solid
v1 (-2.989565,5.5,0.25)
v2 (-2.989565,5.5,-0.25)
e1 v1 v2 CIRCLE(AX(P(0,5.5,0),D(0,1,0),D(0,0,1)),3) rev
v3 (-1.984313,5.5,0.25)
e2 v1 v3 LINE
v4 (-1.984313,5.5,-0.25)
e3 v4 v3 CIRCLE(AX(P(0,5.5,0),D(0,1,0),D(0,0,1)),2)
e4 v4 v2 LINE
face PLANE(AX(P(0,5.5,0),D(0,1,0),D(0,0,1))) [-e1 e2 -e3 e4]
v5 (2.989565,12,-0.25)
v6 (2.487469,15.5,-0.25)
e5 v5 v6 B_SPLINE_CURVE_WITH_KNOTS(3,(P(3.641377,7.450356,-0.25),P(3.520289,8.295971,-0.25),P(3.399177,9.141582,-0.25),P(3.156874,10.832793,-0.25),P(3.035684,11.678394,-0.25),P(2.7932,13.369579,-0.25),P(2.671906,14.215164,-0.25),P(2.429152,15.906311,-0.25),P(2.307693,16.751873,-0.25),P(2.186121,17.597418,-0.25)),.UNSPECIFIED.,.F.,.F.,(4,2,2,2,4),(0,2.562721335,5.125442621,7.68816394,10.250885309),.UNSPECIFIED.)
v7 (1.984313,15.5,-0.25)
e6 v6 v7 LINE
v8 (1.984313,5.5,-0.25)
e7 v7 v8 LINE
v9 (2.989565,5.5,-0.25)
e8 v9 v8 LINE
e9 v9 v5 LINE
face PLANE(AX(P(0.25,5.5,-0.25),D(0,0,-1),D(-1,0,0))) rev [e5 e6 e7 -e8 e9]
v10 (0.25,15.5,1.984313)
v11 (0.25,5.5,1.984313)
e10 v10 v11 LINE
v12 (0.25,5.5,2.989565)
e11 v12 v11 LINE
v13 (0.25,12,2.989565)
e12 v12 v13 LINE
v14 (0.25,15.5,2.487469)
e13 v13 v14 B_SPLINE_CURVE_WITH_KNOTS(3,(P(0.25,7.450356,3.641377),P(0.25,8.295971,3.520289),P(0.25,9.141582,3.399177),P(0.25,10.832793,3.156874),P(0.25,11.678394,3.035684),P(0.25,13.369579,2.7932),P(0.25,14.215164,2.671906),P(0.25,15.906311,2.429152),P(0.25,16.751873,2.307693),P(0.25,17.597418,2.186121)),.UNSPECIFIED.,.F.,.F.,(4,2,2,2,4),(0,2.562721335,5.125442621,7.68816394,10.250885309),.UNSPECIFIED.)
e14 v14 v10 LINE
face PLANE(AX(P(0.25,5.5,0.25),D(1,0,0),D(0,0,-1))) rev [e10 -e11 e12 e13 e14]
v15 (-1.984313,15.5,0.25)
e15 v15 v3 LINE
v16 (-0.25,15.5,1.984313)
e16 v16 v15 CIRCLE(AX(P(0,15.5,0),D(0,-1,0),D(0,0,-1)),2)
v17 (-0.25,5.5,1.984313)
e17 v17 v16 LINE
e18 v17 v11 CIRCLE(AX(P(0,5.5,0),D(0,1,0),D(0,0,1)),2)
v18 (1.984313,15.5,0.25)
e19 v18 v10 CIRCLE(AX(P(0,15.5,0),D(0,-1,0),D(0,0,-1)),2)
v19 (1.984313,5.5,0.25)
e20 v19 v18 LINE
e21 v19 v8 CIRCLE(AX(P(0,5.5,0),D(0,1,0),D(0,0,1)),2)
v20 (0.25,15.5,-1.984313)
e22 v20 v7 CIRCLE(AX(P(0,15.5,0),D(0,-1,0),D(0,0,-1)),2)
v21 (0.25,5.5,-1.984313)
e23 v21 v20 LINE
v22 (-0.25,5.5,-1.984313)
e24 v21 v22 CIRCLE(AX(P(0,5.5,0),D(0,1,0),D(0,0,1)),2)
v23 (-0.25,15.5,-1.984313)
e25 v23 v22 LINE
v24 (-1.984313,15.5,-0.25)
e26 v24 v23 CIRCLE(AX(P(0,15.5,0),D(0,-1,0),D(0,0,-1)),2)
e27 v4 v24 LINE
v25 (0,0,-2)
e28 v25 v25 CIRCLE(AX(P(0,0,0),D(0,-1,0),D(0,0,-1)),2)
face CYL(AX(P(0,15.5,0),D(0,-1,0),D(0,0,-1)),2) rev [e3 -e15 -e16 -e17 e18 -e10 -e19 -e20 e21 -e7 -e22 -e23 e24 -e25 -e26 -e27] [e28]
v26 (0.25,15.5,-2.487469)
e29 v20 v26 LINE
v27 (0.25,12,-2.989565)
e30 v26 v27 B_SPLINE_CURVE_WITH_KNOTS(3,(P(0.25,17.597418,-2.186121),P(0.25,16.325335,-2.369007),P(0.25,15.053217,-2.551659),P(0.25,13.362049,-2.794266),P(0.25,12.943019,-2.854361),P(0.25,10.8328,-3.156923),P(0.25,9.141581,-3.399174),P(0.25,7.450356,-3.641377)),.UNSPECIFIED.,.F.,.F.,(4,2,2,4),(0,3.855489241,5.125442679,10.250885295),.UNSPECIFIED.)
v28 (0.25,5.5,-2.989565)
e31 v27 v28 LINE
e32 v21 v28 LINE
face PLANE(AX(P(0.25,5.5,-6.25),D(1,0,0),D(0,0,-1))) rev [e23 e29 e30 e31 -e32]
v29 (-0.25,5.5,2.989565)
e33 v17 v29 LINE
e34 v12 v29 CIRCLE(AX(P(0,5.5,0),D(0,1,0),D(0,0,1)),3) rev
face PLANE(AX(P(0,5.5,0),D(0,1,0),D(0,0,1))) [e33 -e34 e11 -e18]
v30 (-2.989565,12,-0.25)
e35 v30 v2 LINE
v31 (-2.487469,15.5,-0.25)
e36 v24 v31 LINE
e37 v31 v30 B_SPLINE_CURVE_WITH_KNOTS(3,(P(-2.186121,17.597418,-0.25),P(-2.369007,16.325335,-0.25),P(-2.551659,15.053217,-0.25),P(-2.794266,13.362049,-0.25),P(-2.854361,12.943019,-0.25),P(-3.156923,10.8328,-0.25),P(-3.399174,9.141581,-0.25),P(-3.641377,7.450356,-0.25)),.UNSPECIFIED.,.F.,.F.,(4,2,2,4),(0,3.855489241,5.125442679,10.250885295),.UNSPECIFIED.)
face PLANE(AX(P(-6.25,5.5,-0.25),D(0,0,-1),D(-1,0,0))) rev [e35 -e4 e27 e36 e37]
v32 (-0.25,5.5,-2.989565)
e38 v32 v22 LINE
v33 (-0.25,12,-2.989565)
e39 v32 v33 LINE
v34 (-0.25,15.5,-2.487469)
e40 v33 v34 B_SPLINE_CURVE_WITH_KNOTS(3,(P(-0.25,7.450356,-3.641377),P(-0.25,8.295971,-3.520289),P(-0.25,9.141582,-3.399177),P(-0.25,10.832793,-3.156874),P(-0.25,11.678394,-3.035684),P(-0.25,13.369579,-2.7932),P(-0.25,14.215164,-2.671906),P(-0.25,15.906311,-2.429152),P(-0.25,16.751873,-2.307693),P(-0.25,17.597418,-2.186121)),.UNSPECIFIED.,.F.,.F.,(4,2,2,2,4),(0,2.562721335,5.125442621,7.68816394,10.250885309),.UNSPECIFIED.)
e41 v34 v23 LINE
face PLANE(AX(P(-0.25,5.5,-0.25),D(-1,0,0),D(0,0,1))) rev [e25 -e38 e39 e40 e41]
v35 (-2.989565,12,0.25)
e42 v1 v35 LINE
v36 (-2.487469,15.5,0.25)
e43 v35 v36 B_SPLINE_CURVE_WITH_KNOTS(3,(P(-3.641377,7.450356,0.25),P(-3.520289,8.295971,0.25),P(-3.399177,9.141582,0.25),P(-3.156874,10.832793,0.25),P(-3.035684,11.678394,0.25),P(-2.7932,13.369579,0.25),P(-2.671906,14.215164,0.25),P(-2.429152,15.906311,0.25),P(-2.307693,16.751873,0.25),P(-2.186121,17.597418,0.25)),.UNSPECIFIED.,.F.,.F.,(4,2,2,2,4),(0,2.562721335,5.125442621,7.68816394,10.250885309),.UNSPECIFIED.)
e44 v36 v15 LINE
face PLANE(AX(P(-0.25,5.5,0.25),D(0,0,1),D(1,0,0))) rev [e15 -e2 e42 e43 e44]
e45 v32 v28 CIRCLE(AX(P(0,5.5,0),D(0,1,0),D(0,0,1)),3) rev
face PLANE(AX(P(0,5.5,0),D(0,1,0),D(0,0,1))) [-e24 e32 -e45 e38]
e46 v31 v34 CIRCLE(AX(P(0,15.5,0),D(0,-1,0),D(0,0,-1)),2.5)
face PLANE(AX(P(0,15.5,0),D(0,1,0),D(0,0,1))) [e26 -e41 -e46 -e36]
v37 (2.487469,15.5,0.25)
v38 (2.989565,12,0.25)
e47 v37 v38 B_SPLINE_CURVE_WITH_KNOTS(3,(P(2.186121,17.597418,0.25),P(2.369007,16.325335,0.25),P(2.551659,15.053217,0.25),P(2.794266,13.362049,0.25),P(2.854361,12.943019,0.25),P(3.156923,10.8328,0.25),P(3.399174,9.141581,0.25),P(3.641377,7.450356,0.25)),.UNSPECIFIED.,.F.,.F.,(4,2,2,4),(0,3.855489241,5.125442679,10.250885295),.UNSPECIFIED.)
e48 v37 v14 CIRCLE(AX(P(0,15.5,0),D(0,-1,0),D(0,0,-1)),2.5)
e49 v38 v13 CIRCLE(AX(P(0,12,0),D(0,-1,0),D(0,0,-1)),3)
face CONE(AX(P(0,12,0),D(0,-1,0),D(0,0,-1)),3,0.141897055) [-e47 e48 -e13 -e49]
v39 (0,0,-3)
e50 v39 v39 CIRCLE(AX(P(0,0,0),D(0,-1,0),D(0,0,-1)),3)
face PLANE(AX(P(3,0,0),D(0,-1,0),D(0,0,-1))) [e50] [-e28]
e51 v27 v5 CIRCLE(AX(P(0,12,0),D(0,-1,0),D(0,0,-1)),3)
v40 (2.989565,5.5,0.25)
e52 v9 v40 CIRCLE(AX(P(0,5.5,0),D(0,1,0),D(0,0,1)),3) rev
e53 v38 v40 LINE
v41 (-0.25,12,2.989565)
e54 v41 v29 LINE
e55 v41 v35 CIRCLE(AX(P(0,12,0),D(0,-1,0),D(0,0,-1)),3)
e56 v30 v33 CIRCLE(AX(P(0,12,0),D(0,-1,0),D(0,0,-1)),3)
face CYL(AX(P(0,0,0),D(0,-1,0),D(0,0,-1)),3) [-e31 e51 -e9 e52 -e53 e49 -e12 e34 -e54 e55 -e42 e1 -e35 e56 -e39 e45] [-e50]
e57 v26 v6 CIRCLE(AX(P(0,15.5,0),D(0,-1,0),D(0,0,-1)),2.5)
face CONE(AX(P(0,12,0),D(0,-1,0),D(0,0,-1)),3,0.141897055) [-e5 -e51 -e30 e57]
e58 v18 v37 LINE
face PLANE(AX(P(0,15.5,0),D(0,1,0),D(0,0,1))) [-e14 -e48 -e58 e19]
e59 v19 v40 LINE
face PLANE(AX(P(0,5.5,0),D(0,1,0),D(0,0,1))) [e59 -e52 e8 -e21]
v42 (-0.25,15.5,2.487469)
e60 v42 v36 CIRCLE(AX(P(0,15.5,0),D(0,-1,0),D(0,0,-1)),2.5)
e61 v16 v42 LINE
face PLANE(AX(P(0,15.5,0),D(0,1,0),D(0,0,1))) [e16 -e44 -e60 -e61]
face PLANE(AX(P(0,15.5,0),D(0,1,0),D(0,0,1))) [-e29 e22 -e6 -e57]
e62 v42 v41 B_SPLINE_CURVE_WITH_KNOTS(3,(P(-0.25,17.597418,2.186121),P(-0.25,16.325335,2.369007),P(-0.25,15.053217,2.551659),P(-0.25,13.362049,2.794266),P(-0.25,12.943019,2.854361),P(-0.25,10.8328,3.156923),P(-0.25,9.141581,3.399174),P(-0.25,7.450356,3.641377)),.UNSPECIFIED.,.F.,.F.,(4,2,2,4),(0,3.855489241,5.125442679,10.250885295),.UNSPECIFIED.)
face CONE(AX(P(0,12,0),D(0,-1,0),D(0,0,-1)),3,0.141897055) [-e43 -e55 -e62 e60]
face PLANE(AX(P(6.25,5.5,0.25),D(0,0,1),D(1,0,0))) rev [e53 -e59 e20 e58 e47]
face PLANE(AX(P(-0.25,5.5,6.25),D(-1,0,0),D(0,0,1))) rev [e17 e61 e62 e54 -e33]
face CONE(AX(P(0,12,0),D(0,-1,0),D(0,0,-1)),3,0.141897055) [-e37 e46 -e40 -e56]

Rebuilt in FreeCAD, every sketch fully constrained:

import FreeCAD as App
import Part
import Sketcher

V = App.Vector
Q = App.Units.Quantity

doc = App.newDocument("Part")
body = doc.addObject("PartDesign::Body", "Body")

# Sketch on XY plane
sketch1 = body.newObject("Sketcher::SketchObject", "Sketch")
sketch1.AttachmentSupport = (doc.getObject("XY_Plane"), [""])
sketch1.MapMode = "FlatFace"
sketch1.addGeometry([
    Part.LineSegment(V(2.5, 15.5, 0), V(0, 15.5, 0)),  # 0
    Part.LineSegment(V(0, 15.5, 0), V(0, 0, 0)),  # 1
    Part.LineSegment(V(0, 0, 0), V(3, 0, 0)),  # 2
    Part.LineSegment(V(3, 0, 0), V(3, 12, 0)),  # 3
    Part.LineSegment(V(3, 12, 0), V(2.5, 15.5, 0)),  # 4
], False)
sketch1.addConstraint([
    Sketcher.Constraint("Coincident", 0, 2, 1, 1),
    Sketcher.Constraint("Coincident", 1, 2, 2, 1),
    Sketcher.Constraint("Coincident", 2, 2, 3, 1),
    Sketcher.Constraint("Coincident", 3, 2, 4, 1),
    Sketcher.Constraint("Coincident", 4, 2, 0, 1),
    Sketcher.Constraint("Horizontal", 0),
    Sketcher.Constraint("Vertical", 1),
    Sketcher.Constraint("Horizontal", 2),
    Sketcher.Constraint("Vertical", 3),
    Sketcher.Constraint("Coincident", 1, 2, -1, 1),
    Sketcher.Constraint("DistanceX", 2, 1, 2, 2, Q("3 mm")),
    Sketcher.Constraint("DistanceY", 3, 1, 3, 2, Q("12 mm")),
    Sketcher.Constraint("DistanceX", 0, 2, 0, 1, Q("2.5 mm")),
    Sketcher.Constraint("DistanceY", 1, 2, 1, 1, Q("15.5 mm")),
])
revolution = body.newObject("PartDesign::Revolution", "Revolution")
revolution.Profile = sketch1
revolution.ReferenceAxis = (sketch1, ["V_Axis"])
revolution.Angle = 360

# Sketch on XZ plane
sketch2 = body.newObject("Sketcher::SketchObject", "Sketch001")
sketch2.AttachmentSupport = (doc.getObject("XZ_Plane"), [""])
sketch2.MapMode = "FlatFace"
sketch2.AttachmentOffset = App.Placement(V(0, 0, -15.5), App.Rotation())
sketch2.addGeometry([
    Part.LineSegment(V(0.2, -6.2, 0), V(-0.2, -6.2, 0)),  # 0
    Part.LineSegment(V(-0.2, -6.2, 0), V(-0.2, -0.2, 0)),  # 1
    Part.LineSegment(V(-0.2, -0.2, 0), V(-6.2, -0.2, 0)),  # 2
    Part.LineSegment(V(-6.2, -0.2, 0), V(-6.2, 0.2, 0)),  # 3
    Part.LineSegment(V(-6.2, 0.2, 0), V(-0.2, 0.2, 0)),  # 4
    Part.LineSegment(V(-0.2, 0.2, 0), V(-0.2, 6.2, 0)),  # 5
    Part.LineSegment(V(-0.2, 6.2, 0), V(0.2, 6.2, 0)),  # 6
    Part.LineSegment(V(0.2, 6.2, 0), V(0.2, 0.2, 0)),  # 7
    Part.LineSegment(V(0.2, 0.2, 0), V(6.2, 0.2, 0)),  # 8
    Part.LineSegment(V(6.2, 0.2, 0), V(6.2, -0.2, 0)),  # 9
    Part.LineSegment(V(6.2, -0.2, 0), V(0.2, -0.2, 0)),  # 10
    Part.LineSegment(V(0.2, -0.2, 0), V(0.2, -6.2, 0)),  # 11
], False)
sketch2.addConstraint([
    Sketcher.Constraint("Coincident", 0, 2, 1, 1),
    Sketcher.Constraint("Coincident", 1, 2, 2, 1),
    Sketcher.Constraint("Coincident", 2, 2, 3, 1),
    Sketcher.Constraint("Coincident", 3, 2, 4, 1),
    Sketcher.Constraint("Coincident", 4, 2, 5, 1),
    Sketcher.Constraint("Coincident", 5, 2, 6, 1),
    Sketcher.Constraint("Coincident", 6, 2, 7, 1),
    Sketcher.Constraint("Coincident", 7, 2, 8, 1),
    Sketcher.Constraint("Coincident", 8, 2, 9, 1),
    Sketcher.Constraint("Coincident", 9, 2, 10, 1),
    Sketcher.Constraint("Coincident", 10, 2, 11, 1),
    Sketcher.Constraint("Coincident", 11, 2, 0, 1),
    Sketcher.Constraint("Horizontal", 0),
    Sketcher.Constraint("Vertical", 1),
    Sketcher.Constraint("Horizontal", 2),
    Sketcher.Constraint("Vertical", 3),
    Sketcher.Constraint("Horizontal", 4),
    Sketcher.Constraint("Vertical", 5),
    Sketcher.Constraint("Horizontal", 6),
    Sketcher.Constraint("Vertical", 7),
    Sketcher.Constraint("Horizontal", 8),
    Sketcher.Constraint("Vertical", 9),
    Sketcher.Constraint("Horizontal", 10),
    Sketcher.Constraint("Vertical", 11),
    Sketcher.Constraint("Symmetric", 0, 2, 6, 2, -1, 1),
    Sketcher.Constraint("Symmetric", 2, 2, 8, 2, -1, 1),
    Sketcher.Constraint("Symmetric", 4, 2, 10, 2, -1, 1),
    Sketcher.Constraint("Symmetric", 4, 2, 7, 2, -2),
    Sketcher.Constraint("Equal", 10, 1),
    Sketcher.Constraint("Equal", 6, 3),
    Sketcher.Constraint("DistanceX", 2, 2, 2, 1, Q("6 mm")),
    Sketcher.Constraint("DistanceX", 0, 2, 0, 1, Q("0.5 mm")),
])
pocket1 = body.newObject("PartDesign::Pocket", "Pocket")
pocket1.Profile = sketch2
pocket1.Length = 10
pocket1.Reversed = True

# Sketch on XZ plane
sketch3 = body.newObject("Sketcher::SketchObject", "Sketch002")
sketch3.AttachmentSupport = (doc.getObject("XZ_Plane"), [""])
sketch3.MapMode = "FlatFace"
sketch3.addGeometry(Part.Circle(V(0, 0, 0), V(0, 0, 1), 2), False)
sketch3.addConstraint([
    Sketcher.Constraint("Coincident", 0, 3, -1, 1),
    Sketcher.Constraint("Diameter", 0, Q("4 mm")),
])
pocket2 = body.newObject("PartDesign::Pocket", "Pocket001")
pocket2.Profile = sketch3
pocket2.Type = "ThroughAll"

doc.recompute()
